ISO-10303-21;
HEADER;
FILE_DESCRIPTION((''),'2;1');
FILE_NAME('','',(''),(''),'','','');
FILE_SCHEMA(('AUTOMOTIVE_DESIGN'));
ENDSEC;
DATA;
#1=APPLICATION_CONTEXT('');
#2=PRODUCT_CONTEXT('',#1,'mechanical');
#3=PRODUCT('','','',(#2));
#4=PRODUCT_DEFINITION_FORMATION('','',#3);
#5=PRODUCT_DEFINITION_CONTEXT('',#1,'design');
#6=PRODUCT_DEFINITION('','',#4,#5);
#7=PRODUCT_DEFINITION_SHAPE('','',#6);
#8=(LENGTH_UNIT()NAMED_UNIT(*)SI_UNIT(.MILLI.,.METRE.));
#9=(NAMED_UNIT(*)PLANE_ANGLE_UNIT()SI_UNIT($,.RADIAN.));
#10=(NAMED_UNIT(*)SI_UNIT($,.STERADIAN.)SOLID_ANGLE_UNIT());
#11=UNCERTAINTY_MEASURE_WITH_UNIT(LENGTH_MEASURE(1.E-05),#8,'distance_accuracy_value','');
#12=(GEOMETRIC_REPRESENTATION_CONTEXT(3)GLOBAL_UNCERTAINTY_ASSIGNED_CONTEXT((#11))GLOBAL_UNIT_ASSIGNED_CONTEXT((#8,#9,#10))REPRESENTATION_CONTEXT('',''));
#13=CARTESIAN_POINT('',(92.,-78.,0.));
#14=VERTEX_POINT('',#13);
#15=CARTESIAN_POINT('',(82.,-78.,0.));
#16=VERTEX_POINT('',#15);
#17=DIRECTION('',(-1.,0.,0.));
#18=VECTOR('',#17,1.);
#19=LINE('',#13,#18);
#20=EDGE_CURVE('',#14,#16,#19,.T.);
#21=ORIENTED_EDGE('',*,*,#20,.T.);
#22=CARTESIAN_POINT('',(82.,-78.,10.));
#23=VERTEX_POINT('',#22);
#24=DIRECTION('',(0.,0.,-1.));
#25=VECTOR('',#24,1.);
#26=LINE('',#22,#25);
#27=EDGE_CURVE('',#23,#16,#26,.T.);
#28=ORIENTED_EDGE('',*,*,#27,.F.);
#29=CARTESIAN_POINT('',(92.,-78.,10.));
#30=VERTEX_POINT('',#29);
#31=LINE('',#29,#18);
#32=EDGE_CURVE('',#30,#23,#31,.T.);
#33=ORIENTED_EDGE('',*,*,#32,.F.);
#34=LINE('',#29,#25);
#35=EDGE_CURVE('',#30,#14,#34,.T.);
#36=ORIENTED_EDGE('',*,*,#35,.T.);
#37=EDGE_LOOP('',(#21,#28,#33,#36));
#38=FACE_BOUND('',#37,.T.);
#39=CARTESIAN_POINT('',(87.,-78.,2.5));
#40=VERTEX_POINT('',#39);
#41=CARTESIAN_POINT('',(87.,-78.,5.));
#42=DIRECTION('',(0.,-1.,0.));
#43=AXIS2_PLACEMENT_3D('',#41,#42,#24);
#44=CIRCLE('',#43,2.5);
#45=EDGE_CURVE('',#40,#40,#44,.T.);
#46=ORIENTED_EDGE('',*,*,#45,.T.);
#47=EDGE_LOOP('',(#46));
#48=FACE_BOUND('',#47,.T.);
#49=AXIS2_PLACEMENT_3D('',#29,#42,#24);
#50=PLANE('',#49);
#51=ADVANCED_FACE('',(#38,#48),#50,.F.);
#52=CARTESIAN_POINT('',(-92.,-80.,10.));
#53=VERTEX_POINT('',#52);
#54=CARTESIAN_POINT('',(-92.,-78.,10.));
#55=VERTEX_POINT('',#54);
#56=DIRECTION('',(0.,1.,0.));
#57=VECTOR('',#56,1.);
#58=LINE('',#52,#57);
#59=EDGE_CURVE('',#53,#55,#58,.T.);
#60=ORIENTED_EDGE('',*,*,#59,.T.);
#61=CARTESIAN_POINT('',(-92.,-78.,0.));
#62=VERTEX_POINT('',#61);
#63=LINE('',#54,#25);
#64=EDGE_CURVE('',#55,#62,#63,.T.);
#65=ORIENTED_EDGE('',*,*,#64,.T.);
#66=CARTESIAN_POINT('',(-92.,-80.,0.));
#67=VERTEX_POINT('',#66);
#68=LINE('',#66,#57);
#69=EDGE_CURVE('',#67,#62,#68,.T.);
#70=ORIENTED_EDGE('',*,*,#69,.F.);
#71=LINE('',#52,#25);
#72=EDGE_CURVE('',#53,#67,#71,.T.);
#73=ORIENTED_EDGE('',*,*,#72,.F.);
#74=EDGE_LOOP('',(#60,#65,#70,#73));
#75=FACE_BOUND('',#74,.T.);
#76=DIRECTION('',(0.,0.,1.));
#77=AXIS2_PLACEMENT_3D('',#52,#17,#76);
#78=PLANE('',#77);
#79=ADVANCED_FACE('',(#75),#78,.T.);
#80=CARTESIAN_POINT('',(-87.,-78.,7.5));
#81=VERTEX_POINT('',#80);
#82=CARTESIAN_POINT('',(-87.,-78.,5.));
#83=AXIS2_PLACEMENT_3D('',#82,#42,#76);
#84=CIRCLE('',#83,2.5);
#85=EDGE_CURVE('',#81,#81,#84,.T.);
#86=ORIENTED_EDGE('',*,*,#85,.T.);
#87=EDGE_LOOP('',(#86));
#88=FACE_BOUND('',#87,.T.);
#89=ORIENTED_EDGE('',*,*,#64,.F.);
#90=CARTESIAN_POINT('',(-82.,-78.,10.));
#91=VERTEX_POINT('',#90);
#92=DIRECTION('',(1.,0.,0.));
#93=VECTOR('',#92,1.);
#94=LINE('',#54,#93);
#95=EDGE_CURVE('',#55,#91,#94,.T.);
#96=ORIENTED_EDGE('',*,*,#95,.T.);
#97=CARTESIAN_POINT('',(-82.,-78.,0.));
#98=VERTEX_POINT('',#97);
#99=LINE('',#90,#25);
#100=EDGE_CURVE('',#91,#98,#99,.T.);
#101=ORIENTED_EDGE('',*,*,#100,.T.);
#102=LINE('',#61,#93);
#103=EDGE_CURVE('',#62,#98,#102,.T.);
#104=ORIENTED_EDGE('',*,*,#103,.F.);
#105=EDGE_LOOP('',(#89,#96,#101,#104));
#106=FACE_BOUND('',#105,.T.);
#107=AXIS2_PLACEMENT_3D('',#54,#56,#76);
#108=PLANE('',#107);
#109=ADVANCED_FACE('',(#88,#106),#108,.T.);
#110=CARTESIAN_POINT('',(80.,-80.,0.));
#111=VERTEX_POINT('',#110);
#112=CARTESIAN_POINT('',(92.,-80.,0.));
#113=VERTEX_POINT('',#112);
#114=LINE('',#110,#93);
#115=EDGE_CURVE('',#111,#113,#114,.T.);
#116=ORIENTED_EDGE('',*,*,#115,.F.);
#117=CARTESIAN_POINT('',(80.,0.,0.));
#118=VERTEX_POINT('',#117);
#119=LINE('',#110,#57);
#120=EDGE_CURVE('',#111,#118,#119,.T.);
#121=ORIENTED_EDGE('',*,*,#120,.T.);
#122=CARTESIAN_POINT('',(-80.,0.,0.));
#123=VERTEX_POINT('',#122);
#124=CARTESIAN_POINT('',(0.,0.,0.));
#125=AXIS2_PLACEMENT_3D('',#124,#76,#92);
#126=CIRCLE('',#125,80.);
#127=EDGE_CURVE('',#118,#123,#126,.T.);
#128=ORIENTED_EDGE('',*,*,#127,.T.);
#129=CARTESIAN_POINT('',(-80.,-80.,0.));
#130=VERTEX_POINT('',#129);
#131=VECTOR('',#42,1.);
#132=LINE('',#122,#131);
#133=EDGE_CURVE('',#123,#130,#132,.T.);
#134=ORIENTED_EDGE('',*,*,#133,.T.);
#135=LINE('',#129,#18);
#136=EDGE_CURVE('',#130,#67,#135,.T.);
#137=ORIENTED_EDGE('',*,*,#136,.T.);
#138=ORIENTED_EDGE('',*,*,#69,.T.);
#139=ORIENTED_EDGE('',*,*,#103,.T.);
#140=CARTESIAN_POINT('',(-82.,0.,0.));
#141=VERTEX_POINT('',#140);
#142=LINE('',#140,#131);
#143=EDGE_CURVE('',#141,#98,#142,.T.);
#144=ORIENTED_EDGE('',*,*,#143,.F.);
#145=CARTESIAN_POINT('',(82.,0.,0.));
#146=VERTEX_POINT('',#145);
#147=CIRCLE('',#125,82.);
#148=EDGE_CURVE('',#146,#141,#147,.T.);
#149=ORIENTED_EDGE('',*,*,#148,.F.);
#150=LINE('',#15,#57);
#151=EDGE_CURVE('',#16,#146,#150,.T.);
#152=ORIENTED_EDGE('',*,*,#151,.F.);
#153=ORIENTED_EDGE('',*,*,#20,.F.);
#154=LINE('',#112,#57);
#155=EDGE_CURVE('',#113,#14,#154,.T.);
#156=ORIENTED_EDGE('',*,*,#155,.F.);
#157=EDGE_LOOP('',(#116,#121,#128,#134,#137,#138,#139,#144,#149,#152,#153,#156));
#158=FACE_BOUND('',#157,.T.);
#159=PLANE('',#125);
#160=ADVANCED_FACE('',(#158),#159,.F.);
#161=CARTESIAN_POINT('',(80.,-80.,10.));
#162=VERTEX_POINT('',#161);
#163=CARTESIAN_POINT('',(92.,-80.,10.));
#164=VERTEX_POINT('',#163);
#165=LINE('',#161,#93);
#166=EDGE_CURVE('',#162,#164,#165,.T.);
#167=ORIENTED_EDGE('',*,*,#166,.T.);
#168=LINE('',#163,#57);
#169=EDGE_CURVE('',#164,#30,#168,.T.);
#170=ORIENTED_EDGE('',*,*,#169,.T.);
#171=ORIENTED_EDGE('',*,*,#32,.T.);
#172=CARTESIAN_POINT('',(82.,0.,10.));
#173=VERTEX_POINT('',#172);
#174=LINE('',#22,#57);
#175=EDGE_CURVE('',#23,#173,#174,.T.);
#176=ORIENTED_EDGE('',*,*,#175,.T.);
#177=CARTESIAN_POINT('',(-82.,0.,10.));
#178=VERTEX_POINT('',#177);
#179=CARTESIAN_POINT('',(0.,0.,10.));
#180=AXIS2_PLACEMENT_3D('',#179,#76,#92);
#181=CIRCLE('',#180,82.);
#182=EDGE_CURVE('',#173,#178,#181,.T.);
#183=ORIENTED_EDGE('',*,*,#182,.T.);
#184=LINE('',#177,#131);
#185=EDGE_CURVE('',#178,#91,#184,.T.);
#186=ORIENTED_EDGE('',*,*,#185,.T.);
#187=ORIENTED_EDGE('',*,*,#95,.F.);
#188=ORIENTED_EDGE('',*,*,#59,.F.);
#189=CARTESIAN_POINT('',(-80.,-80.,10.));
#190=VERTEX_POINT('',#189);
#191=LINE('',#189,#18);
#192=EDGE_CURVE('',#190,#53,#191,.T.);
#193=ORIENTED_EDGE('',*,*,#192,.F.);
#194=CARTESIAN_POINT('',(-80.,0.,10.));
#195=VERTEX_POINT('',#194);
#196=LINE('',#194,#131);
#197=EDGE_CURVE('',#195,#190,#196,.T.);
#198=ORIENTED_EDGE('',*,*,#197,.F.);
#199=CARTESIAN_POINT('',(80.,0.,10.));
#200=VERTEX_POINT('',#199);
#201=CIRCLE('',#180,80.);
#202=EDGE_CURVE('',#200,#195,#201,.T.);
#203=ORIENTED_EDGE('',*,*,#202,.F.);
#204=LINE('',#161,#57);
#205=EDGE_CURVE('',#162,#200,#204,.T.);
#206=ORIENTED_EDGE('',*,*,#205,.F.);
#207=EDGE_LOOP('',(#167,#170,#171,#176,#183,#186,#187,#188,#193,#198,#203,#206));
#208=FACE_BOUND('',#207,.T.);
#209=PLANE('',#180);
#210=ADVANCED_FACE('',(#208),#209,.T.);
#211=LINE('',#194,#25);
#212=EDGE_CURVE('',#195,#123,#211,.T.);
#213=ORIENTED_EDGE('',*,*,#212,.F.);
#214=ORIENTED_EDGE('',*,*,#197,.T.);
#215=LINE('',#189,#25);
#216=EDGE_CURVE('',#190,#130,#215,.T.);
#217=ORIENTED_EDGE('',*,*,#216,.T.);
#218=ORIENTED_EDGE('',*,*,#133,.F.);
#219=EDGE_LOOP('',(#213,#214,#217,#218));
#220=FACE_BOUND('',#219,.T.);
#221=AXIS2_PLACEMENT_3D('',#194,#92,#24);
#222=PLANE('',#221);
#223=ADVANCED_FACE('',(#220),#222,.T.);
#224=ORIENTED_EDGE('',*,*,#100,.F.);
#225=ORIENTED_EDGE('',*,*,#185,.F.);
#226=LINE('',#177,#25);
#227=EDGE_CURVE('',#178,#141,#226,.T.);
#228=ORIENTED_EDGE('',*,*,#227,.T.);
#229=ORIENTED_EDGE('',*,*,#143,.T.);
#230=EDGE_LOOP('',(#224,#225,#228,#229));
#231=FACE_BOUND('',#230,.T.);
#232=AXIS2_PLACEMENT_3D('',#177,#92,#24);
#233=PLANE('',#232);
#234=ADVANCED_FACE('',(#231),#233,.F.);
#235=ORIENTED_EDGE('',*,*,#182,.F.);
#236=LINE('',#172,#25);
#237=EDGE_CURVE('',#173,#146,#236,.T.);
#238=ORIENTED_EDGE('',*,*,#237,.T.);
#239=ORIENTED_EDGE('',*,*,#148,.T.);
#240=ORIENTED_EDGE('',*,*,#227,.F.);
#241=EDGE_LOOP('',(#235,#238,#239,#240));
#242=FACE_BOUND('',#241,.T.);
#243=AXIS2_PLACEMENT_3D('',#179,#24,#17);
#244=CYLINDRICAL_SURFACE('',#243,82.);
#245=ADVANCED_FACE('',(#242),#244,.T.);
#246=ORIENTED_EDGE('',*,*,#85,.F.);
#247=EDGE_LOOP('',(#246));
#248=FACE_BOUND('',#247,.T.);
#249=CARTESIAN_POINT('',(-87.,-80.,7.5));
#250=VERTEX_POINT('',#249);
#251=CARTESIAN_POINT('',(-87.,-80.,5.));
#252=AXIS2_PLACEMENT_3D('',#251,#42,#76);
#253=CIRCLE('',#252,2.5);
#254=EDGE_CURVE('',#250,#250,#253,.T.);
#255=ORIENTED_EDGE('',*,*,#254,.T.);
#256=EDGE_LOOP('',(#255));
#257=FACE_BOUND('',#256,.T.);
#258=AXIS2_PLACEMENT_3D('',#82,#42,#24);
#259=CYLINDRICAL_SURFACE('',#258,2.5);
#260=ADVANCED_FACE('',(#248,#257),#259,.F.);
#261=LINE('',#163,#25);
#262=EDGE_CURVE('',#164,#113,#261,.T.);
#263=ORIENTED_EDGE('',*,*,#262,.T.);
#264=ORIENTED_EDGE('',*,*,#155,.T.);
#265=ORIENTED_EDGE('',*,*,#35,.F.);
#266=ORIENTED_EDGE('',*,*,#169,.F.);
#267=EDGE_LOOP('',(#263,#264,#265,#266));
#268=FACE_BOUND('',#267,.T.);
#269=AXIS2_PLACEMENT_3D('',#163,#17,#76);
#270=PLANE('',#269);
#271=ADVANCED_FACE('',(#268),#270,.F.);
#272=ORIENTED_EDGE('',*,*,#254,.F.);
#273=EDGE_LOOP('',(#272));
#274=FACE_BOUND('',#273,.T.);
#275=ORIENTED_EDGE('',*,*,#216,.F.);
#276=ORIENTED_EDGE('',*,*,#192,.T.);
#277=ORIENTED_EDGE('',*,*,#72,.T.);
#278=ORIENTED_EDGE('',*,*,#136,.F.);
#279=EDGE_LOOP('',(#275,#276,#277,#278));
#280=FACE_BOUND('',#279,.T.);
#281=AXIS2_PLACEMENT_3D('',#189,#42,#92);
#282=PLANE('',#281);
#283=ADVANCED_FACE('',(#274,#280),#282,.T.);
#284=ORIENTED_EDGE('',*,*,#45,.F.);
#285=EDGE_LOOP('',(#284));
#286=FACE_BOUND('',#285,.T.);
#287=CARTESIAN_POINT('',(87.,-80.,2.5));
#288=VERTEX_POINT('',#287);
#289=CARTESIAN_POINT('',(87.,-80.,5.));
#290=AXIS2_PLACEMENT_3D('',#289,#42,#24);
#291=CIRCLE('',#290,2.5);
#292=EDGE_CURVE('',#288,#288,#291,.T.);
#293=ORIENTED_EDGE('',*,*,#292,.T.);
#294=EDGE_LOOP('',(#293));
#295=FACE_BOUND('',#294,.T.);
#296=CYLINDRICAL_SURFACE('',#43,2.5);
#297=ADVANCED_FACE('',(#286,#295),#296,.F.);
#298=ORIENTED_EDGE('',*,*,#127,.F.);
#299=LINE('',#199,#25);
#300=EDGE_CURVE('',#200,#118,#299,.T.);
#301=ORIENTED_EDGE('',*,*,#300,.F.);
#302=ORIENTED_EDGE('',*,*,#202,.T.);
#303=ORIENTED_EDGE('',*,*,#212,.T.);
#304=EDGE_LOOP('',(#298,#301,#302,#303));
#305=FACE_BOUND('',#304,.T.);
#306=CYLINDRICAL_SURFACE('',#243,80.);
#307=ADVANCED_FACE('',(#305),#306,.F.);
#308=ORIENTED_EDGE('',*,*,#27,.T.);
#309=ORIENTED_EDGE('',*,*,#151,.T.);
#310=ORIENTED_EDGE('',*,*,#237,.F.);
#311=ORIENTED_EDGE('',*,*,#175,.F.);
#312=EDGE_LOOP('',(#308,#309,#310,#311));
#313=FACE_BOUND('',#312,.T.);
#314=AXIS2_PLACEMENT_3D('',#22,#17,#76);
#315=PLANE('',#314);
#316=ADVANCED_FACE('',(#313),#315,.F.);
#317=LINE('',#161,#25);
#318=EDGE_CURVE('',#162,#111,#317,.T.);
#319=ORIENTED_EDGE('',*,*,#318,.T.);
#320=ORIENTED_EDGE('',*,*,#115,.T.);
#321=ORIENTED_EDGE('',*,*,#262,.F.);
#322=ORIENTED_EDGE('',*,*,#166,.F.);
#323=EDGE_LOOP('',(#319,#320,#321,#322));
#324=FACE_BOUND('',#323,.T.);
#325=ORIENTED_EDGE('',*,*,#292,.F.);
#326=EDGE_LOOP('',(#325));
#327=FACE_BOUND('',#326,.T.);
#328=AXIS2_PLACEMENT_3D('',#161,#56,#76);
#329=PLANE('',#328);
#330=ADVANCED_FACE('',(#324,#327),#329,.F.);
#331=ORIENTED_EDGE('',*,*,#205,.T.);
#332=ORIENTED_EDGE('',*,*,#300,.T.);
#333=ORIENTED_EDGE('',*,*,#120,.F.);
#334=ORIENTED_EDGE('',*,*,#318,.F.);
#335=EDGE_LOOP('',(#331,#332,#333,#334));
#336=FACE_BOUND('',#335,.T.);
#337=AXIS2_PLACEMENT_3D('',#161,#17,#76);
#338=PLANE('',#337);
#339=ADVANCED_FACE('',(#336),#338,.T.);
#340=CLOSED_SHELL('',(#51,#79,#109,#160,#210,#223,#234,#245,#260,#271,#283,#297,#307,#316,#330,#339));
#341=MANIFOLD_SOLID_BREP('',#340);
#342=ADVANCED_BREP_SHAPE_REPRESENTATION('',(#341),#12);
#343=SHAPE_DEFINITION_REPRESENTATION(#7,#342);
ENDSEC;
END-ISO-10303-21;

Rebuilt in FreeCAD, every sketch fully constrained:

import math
import FreeCAD as App
import Part
import Sketcher

doc = App.newDocument("Part")
body = doc.addObject("PartDesign::Body", "Body")

# Sketch on XY plane
sketch1 = body.newObject("Sketcher::SketchObject", "Sketch")
sketch1.AttachmentSupport = (doc.getObject("XY_Plane"), [""])
sketch1.MapMode = "FlatFace"
sketch1.addGeometry([
    Part.LineSegment(App.Vector(-80, -80, 0), App.Vector(-80, 0, 0)),  # 0
    Part.ArcOfCircle(Part.Circle(App.Vector(0, 0, 0), App.Vector(0, 0, 1), 80), math.radians(0), math.radians(180)),  # 1
    Part.LineSegment(App.Vector(80, 0, 0), App.Vector(80, -80, 0)),  # 2
    Part.LineSegment(App.Vector(80, -80, 0), App.Vector(92, -80, 0)),  # 3
    Part.LineSegment(App.Vector(92, -80, 0), App.Vector(92, -78, 0)),  # 4
    Part.LineSegment(App.Vector(92, -78, 0), App.Vector(82, -78, 0)),  # 5
    Part.LineSegment(App.Vector(82, -78, 0), App.Vector(82, 0, 0)),  # 6
    Part.ArcOfCircle(Part.Circle(App.Vector(0, 0, 0), App.Vector(0, 0, 1), 82), math.radians(0), math.radians(180)),  # 7
    Part.LineSegment(App.Vector(-82, 0, 0), App.Vector(-82, -78, 0)),  # 8
    Part.LineSegment(App.Vector(-82, -78, 0), App.Vector(-92, -78, 0)),  # 9
    Part.LineSegment(App.Vector(-92, -78, 0), App.Vector(-92, -80, 0)),  # 10
    Part.LineSegment(App.Vector(-92, -80, 0), App.Vector(-80, -80, 0)),  # 11
], False)
sketch1.addConstraint([
    Sketcher.Constraint("Tangent", 0, 2, 1, 2),
    Sketcher.Constraint("Tangent", 1, 1, 2, 1),
    Sketcher.Constraint("Coincident", 2, 2, 3, 1),
    Sketcher.Constraint("Coincident", 3, 2, 4, 1),
    Sketcher.Constraint("Coincident", 4, 2, 5, 1),
    Sketcher.Constraint("Coincident", 5, 2, 6, 1),
    Sketcher.Constraint("Tangent", 6, 2, 7, 1),
    Sketcher.Constraint("Tangent", 7, 2, 8, 1),
    Sketcher.Constraint("Coincident", 8, 2, 9, 1),
    Sketcher.Constraint("Coincident", 9, 2, 10, 1),
    Sketcher.Constraint("Coincident", 10, 2, 11, 1),
    Sketcher.Constraint("Coincident", 11, 2, 0, 1),
    Sketcher.Constraint("Vertical", 0),
    Sketcher.Constraint("Vertical", 2),
    Sketcher.Constraint("Horizontal", 3),
    Sketcher.Constraint("Vertical", 4),
    Sketcher.Constraint("Horizontal", 5),
    Sketcher.Constraint("Vertical", 6),
    Sketcher.Constraint("Vertical", 8),
    Sketcher.Constraint("Horizontal", 9),
    Sketcher.Constraint("Vertical", 10),
    Sketcher.Constraint("Horizontal", 11),
    Sketcher.Constraint("Coincident", 1, 3, -1, 1),
    Sketcher.Constraint("Coincident", 7, 3, -1, 1),
    Sketcher.Constraint("Symmetric", 4, 2, 9, 2, -2),
    Sketcher.Constraint("Horizontal", 3, 2, 10, 2),
    Sketcher.Constraint("Radius", 1, 80.0),
    Sketcher.Constraint("Radius", 7, 82.0),
    Sketcher.Constraint("DistanceX", 3, 1, 3, 2, 12.0),
    Sketcher.Constraint("DistanceY", 0, 1, 0, 2, 80.0),
    Sketcher.Constraint("DistanceY", 4, 1, 4, 2, 2.0),
])
pad1 = body.newObject("PartDesign::Pad", "Pad")
pad1.Profile = sketch1
pad1.Length = 10

# Sketch on XZ plane
sketch2 = body.newObject("Sketcher::SketchObject", "Sketch001")
sketch2.AttachmentSupport = (doc.getObject("XZ_Plane"), [""])
sketch2.MapMode = "FlatFace"
sketch2.AttachmentOffset = App.Placement(App.Vector(0, 0, 80), App.Rotation())
sketch2.addGeometry([
    Part.Circle(App.Vector(87, 5, 0), App.Vector(0, 0, 1), 2.5),
    Part.Circle(App.Vector(-87, 5, 0), App.Vector(0, 0, 1), 2.5),
], False)
sketch2.addConstraint([
    Sketcher.Constraint("Equal", 0, 1),
    Sketcher.Constraint("Symmetric", 0, 3, 1, 3, -2),
    Sketcher.Constraint("Diameter", 0, 5.0),
    Sketcher.Constraint("DistanceX", -1, 1, 0, 3, 87.0),
    Sketcher.Constraint("DistanceY", -1, 1, 0, 3, 5.0),
])
pocket1 = body.newObject("PartDesign::Pocket", "Pocket")
pocket1.Profile = sketch2
pocket1.Length = 2

doc.recompute()
